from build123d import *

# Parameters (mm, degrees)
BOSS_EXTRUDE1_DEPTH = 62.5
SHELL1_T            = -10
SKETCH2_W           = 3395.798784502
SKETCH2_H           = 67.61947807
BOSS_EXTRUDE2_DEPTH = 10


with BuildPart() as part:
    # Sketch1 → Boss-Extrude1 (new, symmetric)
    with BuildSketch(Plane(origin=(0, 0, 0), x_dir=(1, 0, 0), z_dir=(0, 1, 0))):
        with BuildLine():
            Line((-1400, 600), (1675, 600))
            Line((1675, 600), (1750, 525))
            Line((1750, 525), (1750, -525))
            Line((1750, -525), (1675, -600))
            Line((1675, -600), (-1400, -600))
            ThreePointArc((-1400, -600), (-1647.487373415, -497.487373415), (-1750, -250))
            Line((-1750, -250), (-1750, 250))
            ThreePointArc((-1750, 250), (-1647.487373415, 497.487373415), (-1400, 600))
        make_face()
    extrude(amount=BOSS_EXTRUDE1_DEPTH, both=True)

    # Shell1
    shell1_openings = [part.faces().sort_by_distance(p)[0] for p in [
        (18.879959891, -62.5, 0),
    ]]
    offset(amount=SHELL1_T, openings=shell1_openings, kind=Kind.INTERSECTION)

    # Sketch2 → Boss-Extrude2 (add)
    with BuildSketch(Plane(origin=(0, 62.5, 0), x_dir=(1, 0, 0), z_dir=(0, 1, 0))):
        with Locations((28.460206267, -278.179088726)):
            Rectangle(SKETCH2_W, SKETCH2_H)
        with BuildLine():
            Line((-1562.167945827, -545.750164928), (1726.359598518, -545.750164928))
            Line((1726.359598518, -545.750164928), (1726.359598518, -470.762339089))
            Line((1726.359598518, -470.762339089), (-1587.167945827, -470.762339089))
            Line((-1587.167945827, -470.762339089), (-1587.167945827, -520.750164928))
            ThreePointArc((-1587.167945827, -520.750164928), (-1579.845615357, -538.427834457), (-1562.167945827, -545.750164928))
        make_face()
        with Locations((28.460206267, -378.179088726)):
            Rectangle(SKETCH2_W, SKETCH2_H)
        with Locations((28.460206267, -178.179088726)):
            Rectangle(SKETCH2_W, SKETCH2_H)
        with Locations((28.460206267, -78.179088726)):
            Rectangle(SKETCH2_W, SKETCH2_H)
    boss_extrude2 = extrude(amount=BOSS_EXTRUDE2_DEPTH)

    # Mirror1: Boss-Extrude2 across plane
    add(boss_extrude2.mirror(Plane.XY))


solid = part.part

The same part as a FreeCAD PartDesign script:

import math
import FreeCAD as App
import Part
import Sketcher

V = App.Vector
Q = App.Units.Quantity


def faces_at(feature, points):
    """Names of the faces that lie closest to the given points."""
    faces = feature.Shape.Faces
    near = lambda p: min(range(len(faces)), key=lambda i: faces[i].distToShape(Part.Vertex(*p))[0])
    return sorted({f"Face{near(p) + 1}" for p in points})

doc = App.newDocument("Part")
params = doc.addObject("Spreadsheet::Sheet", "Params")
for row, (alias, value) in enumerate([
    ("sketch1_radius", "350 mm"),
    ("sketch1_width", "3075 mm"),
    ("sketch1_height", "500 mm"),
    ("sketch1_height2", "1050 mm"),
    ("pad1_length", "125 mm"),
    ("thickness_wall", "10 mm"),
    ("sketch2_radius", "25 mm"),
    ("pad2_length", "10 mm"),
], start=1):
    params.set(f"A{row}", alias)
    params.set(f"B{row}", "=" + value)
    params.setAlias(f"B{row}", alias)

body = doc.addObject("PartDesign::Body", "Body")

# Sketch on XZ plane
sketch1 = body.newObject("Sketcher::SketchObject", "Sketch")
sketch1.AttachmentSupport = (doc.getObject("XZ_Plane"), [""])
sketch1.MapMode = "FlatFace"
sketch1.addGeometry(Part.LineSegment(V(1675, -600, 0), V(-1400, -600, 0)), False)
sketch1.addGeometry(Part.ArcOfCircle(Part.Circle(V(-1400, -250, 0), V(0, 0, 1), 350), math.radians(-180), math.radians(-90)), False)
sketch1.addGeometry(Part.LineSegment(V(-1750, -250, 0), V(-1750, 250, 0)), False)
sketch1.addGeometry(Part.ArcOfCircle(Part.Circle(V(-1400, 250, 0), V(0, 0, 1), 350), math.radians(90), math.radians(180)), False)
sketch1.addGeometry(Part.LineSegment(V(-1400, 600, 0), V(1675, 600, 0)), False)
sketch1.addGeometry(Part.LineSegment(V(1675, 600, 0), V(1750, 525, 0)), False)
sketch1.addGeometry(Part.LineSegment(V(1750, 525, 0), V(1750, -525, 0)), False)
sketch1.addGeometry(Part.LineSegment(V(1750, -525, 0), V(1675, -600, 0)), False)
sketch1.addConstraint(Sketcher.Constraint("Tangent", 0, 2, 1, 2))
sketch1.addConstraint(Sketcher.Constraint("Tangent", 1, 1, 2, 1))
sketch1.addConstraint(Sketcher.Constraint("Tangent", 2, 2, 3, 2))
sketch1.addConstraint(Sketcher.Constraint("Tangent", 3, 1, 4, 1))
sketch1.addConstraint(Sketcher.Constraint("Coincident", 4, 2, 5, 1))
sketch1.addConstraint(Sketcher.Constraint("Coincident", 5, 2, 6, 1))
sketch1.addConstraint(Sketcher.Constraint("Coincident", 6, 2, 7, 1))
sketch1.addConstraint(Sketcher.Constraint("Coincident", 7, 2, 0, 1))
sketch1.addConstraint(Sketcher.Constraint("Horizontal", 0))
sketch1.addConstraint(Sketcher.Constraint("Vertical", 2))
sketch1.addConstraint(Sketcher.Constraint("Horizontal", 4))
sketch1.addConstraint(Sketcher.Constraint("Vertical", 6))
sketch1.addConstraint(Sketcher.Constraint("Equal", 1, 3))
sketch1.addConstraint(Sketcher.Constraint("Symmetric", 4, 2, 7, 2, -1))
sketch1.addConstraint(Sketcher.Constraint("Perpendicular", 5, 7))
sketch1.addConstraint(Sketcher.Constraint("Equal", 5, 7))
sketch1.addConstraint(Sketcher.Constraint("Radius", 1, Q("350 mm")))
sketch1.addConstraint(Sketcher.Constraint("DistanceX", 0, 2, 0, 1, Q("3075 mm")))
sketch1.addConstraint(Sketcher.Constraint("DistanceY", 2, 1, 2, 2, Q("500 mm")))
sketch1.addConstraint(Sketcher.Constraint("DistanceY", 6, 2, 6, 1, Q("1050 mm")))
sketch1.addConstraint(Sketcher.Constraint("DistanceX", 1, 3, -1, 1, Q("1400 mm")))
sketch1.setExpression("Constraints[16]", "Params.sketch1_radius")
sketch1.setExpression("Constraints[17]", "Params.sketch1_width")
sketch1.setExpression("Constraints[18]", "Params.sketch1_height")
sketch1.setExpression("Constraints[19]", "Params.sketch1_height2")
pad1 = body.newObject("PartDesign::Pad", "Pad")
pad1.Profile = sketch1
pad1.setExpression("Length", "Params.pad1_length")
pad1.Midplane = True
doc.recompute()

thickness = body.newObject("PartDesign::Thickness", "Thickness")
thickness.Base = (pad1, faces_at(pad1, [(0, -62.5, 0)]))
thickness.setExpression("Value", "Params.thickness_wall")
thickness.Reversed = True
thickness.Join = "Intersection"

# Sketch on XZ plane
sketch2 = body.newObject("Sketcher::SketchObject", "Sketch001")
sketch2.AttachmentSupport = (doc.getObject("XZ_Plane"), [""])
sketch2.MapMode = "FlatFace"
sketch2.AttachmentOffset = App.Placement(V(0, 0, -62.5), App.Rotation())
sketch2.addGeometry(Part.LineSegment(V(-1669, 244, 0), V(-1669, 312, 0)), False)
sketch2.addGeometry(Part.LineSegment(V(-1669, 312, 0), V(1726, 312, 0)), False)
sketch2.addGeometry(Part.LineSegment(V(1726, 312, 0), V(1726, 244, 0)), False)
sketch2.addGeometry(Part.LineSegment(V(1726, 244, 0), V(-1669, 244, 0)), False)
sketch2.addGeometry(Part.LineSegment(V(-1562, 546, 0), V(1726, 546, 0)), False)
sketch2.addGeometry(Part.LineSegment(V(1726, 546, 0), V(1726, 471, 0)), False)
sketch2.addGeometry(Part.LineSegment(V(1726, 471, 0), V(-1587, 471, 0)), False)
sketch2.addGeometry(Part.LineSegment(V(-1587, 471, 0), V(-1587, 521, 0)), False)
sketch2.addGeometry(Part.ArcOfCircle(Part.Circle(V(-1562, 521, 0), V(0, 0, 1), 25), math.radians(90), math.radians(180)), False)
sketch2.addGeometry(Part.LineSegment(V(-1669, 344, 0), V(-1669, 412, 0)), False)
sketch2.addGeometry(Part.LineSegment(V(-1669, 412, 0), V(1726, 412, 0)), False)
sketch2.addGeometry(Part.LineSegment(V(1726, 412, 0), V(1726, 344, 0)), False)
sketch2.addGeometry(Part.LineSegment(V(1726, 344, 0), V(-1669, 344, 0)), False)
sketch2.addGeometry(Part.LineSegment(V(-1669, 144, 0), V(-1669, 212, 0)), False)
sketch2.addGeometry(Part.LineSegment(V(-1669, 212, 0), V(1726, 212, 0)), False)
sketch2.addGeometry(Part.LineSegment(V(1726, 212, 0), V(1726, 144, 0)), False)
sketch2.addGeometry(Part.LineSegment(V(1726, 144, 0), V(-1669, 144, 0)), False)
sketch2.addGeometry(Part.LineSegment(V(-1669, 44, 0), V(-1669, 112, 0)), False)
sketch2.addGeometry(Part.LineSegment(V(-1669, 112, 0), V(1726, 112, 0)), False)
sketch2.addGeometry(Part.LineSegment(V(1726, 112, 0), V(1726, 44, 0)), False)
sketch2.addGeometry(Part.LineSegment(V(1726, 44, 0), V(-1669, 44, 0)), False)
sketch2.addConstraint(Sketcher.Constraint("Coincident", 0, 2, 1, 1))
sketch2.addConstraint(Sketcher.Constraint("Coincident", 1, 2, 2, 1))
sketch2.addConstraint(Sketcher.Constraint("Coincident", 2, 2, 3, 1))
sketch2.addConstraint(Sketcher.Constraint("Coincident", 3, 2, 0, 1))
sketch2.addConstraint(Sketcher.Constraint("Coincident", 4, 2, 5, 1))
sketch2.addConstraint(Sketcher.Constraint("Coincident", 5, 2, 6, 1))
sketch2.addConstraint(Sketcher.Constraint("Coincident", 6, 2, 7, 1))
sketch2.addConstraint(Sketcher.Constraint("Tangent", 7, 2, 8, 2))
sketch2.addConstraint(Sketcher.Constraint("Tangent", 8, 1, 4, 1))
sketch2.addConstraint(Sketcher.Constraint("Coincident", 9, 2, 10, 1))
sketch2.addConstraint(Sketcher.Constraint("Coincident", 10, 2, 11, 1))
sketch2.addConstraint(Sketcher.Constraint("Coincident", 11, 2, 12, 1))
sketch2.addConstraint(Sketcher.Constraint("Coincident", 12, 2, 9, 1))
sketch2.addConstraint(Sketcher.Constraint("Coincident", 13, 2, 14, 1))
sketch2.addConstraint(Sketcher.Constraint("Coincident", 14, 2, 15, 1))
sketch2.addConstraint(Sketcher.Constraint("Coincident", 15, 2, 16, 1))
sketch2.addConstraint(Sketcher.Constraint("Coincident", 16, 2, 13, 1))
sketch2.addConstraint(Sketcher.Constraint("Coincident", 17, 2, 18, 1))
sketch2.addConstraint(Sketcher.Constraint("Coincident", 18, 2, 19, 1))
sketch2.addConstraint(Sketcher.Constraint("Coincident", 19, 2, 20, 1))
sketch2.addConstraint(Sketcher.Constraint("Coincident", 20, 2, 17, 1))
sketch2.addConstraint(Sketcher.Constraint("Vertical", 0))
sketch2.addConstraint(Sketcher.Constraint("Horizontal", 1))
sketch2.addConstraint(Sketcher.Constraint("Vertical", 2))
sketch2.addConstraint(Sketcher.Constraint("Horizontal", 3))
sketch2.addConstraint(Sketcher.Constraint("Horizontal", 4))
sketch2.addConstraint(Sketcher.Constraint("Vertical", 5))
sketch2.addConstraint(Sketcher.Constraint("Horizontal", 6))
sketch2.addConstraint(Sketcher.Constraint("Vertical", 7))
sketch2.addConstraint(Sketcher.Constraint("Vertical", 9))
sketch2.addConstraint(Sketcher.Constraint("Horizontal", 10))
sketch2.addConstraint(Sketcher.Constraint("Vertical", 11))
sketch2.addConstraint(Sketcher.Constraint("Horizontal", 12))
sketch2.addConstraint(Sketcher.Constraint("Vertical", 13))
sketch2.addConstraint(Sketcher.Constraint("Horizontal", 14))
sketch2.addConstraint(Sketcher.Constraint("Vertical", 15))
sketch2.addConstraint(Sketcher.Constraint("Horizontal", 16))
sketch2.addConstraint(Sketcher.Constraint("Vertical", 17))
sketch2.addConstraint(Sketcher.Constraint("Horizontal", 18))
sketch2.addConstraint(Sketcher.Constraint("Vertical", 19))
sketch2.addConstraint(Sketcher.Constraint("Horizontal", 20))
sketch2.addConstraint(Sketcher.Constraint("Vertical", 2, 2, 4, 2))
sketch2.addConstraint(Sketcher.Constraint("Vertical", 3, 2, 9, 2))
sketch2.addConstraint(Sketcher.Constraint("Vertical", 5, 2, 10, 2))
sketch2.addConstraint(Sketcher.Constraint("Vertical", 12, 2, 13, 2))
sketch2.addConstraint(Sketcher.Constraint("Vertical", 11, 2, 14, 2))
sketch2.addConstraint(Sketcher.Constraint("Vertical", 16, 2, 17, 2))
sketch2.addConstraint(Sketcher.Constraint("Vertical", 15, 2, 18, 2))
sketch2.addConstraint(Sketcher.Constraint("Equal", 2, 9))
sketch2.addConstraint(Sketcher.Constraint("Equal", 11, 13))
sketch2.addConstraint(Sketcher.Constraint("Equal", 15, 17))
sketch2.addConstraint(Sketcher.Constraint("Radius", 8, Q("25 mm")))
sketch2.addConstraint(Sketcher.Constraint("DistanceY", 0, 2, 9, 2, Q("100 mm")))
sketch2.addConstraint(Sketcher.Constraint("DistanceY", 13, 2, 0, 2, Q("100 mm")))
sketch2.addConstraint(Sketcher.Constraint("DistanceY", 17, 2, 13, 2, Q("100 mm")))
sketch2.addConstraint(Sketcher.Constraint("DistanceY", 0, 1, 0, 2, Q("67.619478 mm")))
sketch2.addConstraint(Sketcher.Constraint("DistanceX", -1, 1, 1, 2, Q("1726.359599 mm")))
sketch2.addConstraint(Sketcher.Constraint("DistanceX", 1, 1, 1, 2, Q("3395.798785 mm")))
sketch2.addConstraint(Sketcher.Constraint("DistanceX", 4, 1, 4, 2, Q("3288.527544 mm")))
sketch2.addConstraint(Sketcher.Constraint("DistanceY", 5, 2, 5, 1, Q("74.987826 mm")))
sketch2.addConstraint(Sketcher.Constraint("DistanceY", -1, 1, 2, 2, Q("244.36935 mm")))
sketch2.addConstraint(Sketcher.Constraint("DistanceY", -1, 1, 5, 2, Q("470.762339 mm")))
sketch2.setExpression("Constraints[51]", "Params.sketch2_radius")
pad2 = body.newObject("PartDesign::Pad", "Pad001")
pad2.Profile = sketch2
pad2.setExpression("Length", "Params.pad2_length")
pad2.Reversed = True
doc.recompute()

mirrored = body.newObject("PartDesign::Mirrored", "Mirrored")
mirrored.Originals = [pad2]
mirrored.MirrorPlane = (doc.getObject("XY_Plane"), [""])
body.Tip = mirrored

doc.recompute()
